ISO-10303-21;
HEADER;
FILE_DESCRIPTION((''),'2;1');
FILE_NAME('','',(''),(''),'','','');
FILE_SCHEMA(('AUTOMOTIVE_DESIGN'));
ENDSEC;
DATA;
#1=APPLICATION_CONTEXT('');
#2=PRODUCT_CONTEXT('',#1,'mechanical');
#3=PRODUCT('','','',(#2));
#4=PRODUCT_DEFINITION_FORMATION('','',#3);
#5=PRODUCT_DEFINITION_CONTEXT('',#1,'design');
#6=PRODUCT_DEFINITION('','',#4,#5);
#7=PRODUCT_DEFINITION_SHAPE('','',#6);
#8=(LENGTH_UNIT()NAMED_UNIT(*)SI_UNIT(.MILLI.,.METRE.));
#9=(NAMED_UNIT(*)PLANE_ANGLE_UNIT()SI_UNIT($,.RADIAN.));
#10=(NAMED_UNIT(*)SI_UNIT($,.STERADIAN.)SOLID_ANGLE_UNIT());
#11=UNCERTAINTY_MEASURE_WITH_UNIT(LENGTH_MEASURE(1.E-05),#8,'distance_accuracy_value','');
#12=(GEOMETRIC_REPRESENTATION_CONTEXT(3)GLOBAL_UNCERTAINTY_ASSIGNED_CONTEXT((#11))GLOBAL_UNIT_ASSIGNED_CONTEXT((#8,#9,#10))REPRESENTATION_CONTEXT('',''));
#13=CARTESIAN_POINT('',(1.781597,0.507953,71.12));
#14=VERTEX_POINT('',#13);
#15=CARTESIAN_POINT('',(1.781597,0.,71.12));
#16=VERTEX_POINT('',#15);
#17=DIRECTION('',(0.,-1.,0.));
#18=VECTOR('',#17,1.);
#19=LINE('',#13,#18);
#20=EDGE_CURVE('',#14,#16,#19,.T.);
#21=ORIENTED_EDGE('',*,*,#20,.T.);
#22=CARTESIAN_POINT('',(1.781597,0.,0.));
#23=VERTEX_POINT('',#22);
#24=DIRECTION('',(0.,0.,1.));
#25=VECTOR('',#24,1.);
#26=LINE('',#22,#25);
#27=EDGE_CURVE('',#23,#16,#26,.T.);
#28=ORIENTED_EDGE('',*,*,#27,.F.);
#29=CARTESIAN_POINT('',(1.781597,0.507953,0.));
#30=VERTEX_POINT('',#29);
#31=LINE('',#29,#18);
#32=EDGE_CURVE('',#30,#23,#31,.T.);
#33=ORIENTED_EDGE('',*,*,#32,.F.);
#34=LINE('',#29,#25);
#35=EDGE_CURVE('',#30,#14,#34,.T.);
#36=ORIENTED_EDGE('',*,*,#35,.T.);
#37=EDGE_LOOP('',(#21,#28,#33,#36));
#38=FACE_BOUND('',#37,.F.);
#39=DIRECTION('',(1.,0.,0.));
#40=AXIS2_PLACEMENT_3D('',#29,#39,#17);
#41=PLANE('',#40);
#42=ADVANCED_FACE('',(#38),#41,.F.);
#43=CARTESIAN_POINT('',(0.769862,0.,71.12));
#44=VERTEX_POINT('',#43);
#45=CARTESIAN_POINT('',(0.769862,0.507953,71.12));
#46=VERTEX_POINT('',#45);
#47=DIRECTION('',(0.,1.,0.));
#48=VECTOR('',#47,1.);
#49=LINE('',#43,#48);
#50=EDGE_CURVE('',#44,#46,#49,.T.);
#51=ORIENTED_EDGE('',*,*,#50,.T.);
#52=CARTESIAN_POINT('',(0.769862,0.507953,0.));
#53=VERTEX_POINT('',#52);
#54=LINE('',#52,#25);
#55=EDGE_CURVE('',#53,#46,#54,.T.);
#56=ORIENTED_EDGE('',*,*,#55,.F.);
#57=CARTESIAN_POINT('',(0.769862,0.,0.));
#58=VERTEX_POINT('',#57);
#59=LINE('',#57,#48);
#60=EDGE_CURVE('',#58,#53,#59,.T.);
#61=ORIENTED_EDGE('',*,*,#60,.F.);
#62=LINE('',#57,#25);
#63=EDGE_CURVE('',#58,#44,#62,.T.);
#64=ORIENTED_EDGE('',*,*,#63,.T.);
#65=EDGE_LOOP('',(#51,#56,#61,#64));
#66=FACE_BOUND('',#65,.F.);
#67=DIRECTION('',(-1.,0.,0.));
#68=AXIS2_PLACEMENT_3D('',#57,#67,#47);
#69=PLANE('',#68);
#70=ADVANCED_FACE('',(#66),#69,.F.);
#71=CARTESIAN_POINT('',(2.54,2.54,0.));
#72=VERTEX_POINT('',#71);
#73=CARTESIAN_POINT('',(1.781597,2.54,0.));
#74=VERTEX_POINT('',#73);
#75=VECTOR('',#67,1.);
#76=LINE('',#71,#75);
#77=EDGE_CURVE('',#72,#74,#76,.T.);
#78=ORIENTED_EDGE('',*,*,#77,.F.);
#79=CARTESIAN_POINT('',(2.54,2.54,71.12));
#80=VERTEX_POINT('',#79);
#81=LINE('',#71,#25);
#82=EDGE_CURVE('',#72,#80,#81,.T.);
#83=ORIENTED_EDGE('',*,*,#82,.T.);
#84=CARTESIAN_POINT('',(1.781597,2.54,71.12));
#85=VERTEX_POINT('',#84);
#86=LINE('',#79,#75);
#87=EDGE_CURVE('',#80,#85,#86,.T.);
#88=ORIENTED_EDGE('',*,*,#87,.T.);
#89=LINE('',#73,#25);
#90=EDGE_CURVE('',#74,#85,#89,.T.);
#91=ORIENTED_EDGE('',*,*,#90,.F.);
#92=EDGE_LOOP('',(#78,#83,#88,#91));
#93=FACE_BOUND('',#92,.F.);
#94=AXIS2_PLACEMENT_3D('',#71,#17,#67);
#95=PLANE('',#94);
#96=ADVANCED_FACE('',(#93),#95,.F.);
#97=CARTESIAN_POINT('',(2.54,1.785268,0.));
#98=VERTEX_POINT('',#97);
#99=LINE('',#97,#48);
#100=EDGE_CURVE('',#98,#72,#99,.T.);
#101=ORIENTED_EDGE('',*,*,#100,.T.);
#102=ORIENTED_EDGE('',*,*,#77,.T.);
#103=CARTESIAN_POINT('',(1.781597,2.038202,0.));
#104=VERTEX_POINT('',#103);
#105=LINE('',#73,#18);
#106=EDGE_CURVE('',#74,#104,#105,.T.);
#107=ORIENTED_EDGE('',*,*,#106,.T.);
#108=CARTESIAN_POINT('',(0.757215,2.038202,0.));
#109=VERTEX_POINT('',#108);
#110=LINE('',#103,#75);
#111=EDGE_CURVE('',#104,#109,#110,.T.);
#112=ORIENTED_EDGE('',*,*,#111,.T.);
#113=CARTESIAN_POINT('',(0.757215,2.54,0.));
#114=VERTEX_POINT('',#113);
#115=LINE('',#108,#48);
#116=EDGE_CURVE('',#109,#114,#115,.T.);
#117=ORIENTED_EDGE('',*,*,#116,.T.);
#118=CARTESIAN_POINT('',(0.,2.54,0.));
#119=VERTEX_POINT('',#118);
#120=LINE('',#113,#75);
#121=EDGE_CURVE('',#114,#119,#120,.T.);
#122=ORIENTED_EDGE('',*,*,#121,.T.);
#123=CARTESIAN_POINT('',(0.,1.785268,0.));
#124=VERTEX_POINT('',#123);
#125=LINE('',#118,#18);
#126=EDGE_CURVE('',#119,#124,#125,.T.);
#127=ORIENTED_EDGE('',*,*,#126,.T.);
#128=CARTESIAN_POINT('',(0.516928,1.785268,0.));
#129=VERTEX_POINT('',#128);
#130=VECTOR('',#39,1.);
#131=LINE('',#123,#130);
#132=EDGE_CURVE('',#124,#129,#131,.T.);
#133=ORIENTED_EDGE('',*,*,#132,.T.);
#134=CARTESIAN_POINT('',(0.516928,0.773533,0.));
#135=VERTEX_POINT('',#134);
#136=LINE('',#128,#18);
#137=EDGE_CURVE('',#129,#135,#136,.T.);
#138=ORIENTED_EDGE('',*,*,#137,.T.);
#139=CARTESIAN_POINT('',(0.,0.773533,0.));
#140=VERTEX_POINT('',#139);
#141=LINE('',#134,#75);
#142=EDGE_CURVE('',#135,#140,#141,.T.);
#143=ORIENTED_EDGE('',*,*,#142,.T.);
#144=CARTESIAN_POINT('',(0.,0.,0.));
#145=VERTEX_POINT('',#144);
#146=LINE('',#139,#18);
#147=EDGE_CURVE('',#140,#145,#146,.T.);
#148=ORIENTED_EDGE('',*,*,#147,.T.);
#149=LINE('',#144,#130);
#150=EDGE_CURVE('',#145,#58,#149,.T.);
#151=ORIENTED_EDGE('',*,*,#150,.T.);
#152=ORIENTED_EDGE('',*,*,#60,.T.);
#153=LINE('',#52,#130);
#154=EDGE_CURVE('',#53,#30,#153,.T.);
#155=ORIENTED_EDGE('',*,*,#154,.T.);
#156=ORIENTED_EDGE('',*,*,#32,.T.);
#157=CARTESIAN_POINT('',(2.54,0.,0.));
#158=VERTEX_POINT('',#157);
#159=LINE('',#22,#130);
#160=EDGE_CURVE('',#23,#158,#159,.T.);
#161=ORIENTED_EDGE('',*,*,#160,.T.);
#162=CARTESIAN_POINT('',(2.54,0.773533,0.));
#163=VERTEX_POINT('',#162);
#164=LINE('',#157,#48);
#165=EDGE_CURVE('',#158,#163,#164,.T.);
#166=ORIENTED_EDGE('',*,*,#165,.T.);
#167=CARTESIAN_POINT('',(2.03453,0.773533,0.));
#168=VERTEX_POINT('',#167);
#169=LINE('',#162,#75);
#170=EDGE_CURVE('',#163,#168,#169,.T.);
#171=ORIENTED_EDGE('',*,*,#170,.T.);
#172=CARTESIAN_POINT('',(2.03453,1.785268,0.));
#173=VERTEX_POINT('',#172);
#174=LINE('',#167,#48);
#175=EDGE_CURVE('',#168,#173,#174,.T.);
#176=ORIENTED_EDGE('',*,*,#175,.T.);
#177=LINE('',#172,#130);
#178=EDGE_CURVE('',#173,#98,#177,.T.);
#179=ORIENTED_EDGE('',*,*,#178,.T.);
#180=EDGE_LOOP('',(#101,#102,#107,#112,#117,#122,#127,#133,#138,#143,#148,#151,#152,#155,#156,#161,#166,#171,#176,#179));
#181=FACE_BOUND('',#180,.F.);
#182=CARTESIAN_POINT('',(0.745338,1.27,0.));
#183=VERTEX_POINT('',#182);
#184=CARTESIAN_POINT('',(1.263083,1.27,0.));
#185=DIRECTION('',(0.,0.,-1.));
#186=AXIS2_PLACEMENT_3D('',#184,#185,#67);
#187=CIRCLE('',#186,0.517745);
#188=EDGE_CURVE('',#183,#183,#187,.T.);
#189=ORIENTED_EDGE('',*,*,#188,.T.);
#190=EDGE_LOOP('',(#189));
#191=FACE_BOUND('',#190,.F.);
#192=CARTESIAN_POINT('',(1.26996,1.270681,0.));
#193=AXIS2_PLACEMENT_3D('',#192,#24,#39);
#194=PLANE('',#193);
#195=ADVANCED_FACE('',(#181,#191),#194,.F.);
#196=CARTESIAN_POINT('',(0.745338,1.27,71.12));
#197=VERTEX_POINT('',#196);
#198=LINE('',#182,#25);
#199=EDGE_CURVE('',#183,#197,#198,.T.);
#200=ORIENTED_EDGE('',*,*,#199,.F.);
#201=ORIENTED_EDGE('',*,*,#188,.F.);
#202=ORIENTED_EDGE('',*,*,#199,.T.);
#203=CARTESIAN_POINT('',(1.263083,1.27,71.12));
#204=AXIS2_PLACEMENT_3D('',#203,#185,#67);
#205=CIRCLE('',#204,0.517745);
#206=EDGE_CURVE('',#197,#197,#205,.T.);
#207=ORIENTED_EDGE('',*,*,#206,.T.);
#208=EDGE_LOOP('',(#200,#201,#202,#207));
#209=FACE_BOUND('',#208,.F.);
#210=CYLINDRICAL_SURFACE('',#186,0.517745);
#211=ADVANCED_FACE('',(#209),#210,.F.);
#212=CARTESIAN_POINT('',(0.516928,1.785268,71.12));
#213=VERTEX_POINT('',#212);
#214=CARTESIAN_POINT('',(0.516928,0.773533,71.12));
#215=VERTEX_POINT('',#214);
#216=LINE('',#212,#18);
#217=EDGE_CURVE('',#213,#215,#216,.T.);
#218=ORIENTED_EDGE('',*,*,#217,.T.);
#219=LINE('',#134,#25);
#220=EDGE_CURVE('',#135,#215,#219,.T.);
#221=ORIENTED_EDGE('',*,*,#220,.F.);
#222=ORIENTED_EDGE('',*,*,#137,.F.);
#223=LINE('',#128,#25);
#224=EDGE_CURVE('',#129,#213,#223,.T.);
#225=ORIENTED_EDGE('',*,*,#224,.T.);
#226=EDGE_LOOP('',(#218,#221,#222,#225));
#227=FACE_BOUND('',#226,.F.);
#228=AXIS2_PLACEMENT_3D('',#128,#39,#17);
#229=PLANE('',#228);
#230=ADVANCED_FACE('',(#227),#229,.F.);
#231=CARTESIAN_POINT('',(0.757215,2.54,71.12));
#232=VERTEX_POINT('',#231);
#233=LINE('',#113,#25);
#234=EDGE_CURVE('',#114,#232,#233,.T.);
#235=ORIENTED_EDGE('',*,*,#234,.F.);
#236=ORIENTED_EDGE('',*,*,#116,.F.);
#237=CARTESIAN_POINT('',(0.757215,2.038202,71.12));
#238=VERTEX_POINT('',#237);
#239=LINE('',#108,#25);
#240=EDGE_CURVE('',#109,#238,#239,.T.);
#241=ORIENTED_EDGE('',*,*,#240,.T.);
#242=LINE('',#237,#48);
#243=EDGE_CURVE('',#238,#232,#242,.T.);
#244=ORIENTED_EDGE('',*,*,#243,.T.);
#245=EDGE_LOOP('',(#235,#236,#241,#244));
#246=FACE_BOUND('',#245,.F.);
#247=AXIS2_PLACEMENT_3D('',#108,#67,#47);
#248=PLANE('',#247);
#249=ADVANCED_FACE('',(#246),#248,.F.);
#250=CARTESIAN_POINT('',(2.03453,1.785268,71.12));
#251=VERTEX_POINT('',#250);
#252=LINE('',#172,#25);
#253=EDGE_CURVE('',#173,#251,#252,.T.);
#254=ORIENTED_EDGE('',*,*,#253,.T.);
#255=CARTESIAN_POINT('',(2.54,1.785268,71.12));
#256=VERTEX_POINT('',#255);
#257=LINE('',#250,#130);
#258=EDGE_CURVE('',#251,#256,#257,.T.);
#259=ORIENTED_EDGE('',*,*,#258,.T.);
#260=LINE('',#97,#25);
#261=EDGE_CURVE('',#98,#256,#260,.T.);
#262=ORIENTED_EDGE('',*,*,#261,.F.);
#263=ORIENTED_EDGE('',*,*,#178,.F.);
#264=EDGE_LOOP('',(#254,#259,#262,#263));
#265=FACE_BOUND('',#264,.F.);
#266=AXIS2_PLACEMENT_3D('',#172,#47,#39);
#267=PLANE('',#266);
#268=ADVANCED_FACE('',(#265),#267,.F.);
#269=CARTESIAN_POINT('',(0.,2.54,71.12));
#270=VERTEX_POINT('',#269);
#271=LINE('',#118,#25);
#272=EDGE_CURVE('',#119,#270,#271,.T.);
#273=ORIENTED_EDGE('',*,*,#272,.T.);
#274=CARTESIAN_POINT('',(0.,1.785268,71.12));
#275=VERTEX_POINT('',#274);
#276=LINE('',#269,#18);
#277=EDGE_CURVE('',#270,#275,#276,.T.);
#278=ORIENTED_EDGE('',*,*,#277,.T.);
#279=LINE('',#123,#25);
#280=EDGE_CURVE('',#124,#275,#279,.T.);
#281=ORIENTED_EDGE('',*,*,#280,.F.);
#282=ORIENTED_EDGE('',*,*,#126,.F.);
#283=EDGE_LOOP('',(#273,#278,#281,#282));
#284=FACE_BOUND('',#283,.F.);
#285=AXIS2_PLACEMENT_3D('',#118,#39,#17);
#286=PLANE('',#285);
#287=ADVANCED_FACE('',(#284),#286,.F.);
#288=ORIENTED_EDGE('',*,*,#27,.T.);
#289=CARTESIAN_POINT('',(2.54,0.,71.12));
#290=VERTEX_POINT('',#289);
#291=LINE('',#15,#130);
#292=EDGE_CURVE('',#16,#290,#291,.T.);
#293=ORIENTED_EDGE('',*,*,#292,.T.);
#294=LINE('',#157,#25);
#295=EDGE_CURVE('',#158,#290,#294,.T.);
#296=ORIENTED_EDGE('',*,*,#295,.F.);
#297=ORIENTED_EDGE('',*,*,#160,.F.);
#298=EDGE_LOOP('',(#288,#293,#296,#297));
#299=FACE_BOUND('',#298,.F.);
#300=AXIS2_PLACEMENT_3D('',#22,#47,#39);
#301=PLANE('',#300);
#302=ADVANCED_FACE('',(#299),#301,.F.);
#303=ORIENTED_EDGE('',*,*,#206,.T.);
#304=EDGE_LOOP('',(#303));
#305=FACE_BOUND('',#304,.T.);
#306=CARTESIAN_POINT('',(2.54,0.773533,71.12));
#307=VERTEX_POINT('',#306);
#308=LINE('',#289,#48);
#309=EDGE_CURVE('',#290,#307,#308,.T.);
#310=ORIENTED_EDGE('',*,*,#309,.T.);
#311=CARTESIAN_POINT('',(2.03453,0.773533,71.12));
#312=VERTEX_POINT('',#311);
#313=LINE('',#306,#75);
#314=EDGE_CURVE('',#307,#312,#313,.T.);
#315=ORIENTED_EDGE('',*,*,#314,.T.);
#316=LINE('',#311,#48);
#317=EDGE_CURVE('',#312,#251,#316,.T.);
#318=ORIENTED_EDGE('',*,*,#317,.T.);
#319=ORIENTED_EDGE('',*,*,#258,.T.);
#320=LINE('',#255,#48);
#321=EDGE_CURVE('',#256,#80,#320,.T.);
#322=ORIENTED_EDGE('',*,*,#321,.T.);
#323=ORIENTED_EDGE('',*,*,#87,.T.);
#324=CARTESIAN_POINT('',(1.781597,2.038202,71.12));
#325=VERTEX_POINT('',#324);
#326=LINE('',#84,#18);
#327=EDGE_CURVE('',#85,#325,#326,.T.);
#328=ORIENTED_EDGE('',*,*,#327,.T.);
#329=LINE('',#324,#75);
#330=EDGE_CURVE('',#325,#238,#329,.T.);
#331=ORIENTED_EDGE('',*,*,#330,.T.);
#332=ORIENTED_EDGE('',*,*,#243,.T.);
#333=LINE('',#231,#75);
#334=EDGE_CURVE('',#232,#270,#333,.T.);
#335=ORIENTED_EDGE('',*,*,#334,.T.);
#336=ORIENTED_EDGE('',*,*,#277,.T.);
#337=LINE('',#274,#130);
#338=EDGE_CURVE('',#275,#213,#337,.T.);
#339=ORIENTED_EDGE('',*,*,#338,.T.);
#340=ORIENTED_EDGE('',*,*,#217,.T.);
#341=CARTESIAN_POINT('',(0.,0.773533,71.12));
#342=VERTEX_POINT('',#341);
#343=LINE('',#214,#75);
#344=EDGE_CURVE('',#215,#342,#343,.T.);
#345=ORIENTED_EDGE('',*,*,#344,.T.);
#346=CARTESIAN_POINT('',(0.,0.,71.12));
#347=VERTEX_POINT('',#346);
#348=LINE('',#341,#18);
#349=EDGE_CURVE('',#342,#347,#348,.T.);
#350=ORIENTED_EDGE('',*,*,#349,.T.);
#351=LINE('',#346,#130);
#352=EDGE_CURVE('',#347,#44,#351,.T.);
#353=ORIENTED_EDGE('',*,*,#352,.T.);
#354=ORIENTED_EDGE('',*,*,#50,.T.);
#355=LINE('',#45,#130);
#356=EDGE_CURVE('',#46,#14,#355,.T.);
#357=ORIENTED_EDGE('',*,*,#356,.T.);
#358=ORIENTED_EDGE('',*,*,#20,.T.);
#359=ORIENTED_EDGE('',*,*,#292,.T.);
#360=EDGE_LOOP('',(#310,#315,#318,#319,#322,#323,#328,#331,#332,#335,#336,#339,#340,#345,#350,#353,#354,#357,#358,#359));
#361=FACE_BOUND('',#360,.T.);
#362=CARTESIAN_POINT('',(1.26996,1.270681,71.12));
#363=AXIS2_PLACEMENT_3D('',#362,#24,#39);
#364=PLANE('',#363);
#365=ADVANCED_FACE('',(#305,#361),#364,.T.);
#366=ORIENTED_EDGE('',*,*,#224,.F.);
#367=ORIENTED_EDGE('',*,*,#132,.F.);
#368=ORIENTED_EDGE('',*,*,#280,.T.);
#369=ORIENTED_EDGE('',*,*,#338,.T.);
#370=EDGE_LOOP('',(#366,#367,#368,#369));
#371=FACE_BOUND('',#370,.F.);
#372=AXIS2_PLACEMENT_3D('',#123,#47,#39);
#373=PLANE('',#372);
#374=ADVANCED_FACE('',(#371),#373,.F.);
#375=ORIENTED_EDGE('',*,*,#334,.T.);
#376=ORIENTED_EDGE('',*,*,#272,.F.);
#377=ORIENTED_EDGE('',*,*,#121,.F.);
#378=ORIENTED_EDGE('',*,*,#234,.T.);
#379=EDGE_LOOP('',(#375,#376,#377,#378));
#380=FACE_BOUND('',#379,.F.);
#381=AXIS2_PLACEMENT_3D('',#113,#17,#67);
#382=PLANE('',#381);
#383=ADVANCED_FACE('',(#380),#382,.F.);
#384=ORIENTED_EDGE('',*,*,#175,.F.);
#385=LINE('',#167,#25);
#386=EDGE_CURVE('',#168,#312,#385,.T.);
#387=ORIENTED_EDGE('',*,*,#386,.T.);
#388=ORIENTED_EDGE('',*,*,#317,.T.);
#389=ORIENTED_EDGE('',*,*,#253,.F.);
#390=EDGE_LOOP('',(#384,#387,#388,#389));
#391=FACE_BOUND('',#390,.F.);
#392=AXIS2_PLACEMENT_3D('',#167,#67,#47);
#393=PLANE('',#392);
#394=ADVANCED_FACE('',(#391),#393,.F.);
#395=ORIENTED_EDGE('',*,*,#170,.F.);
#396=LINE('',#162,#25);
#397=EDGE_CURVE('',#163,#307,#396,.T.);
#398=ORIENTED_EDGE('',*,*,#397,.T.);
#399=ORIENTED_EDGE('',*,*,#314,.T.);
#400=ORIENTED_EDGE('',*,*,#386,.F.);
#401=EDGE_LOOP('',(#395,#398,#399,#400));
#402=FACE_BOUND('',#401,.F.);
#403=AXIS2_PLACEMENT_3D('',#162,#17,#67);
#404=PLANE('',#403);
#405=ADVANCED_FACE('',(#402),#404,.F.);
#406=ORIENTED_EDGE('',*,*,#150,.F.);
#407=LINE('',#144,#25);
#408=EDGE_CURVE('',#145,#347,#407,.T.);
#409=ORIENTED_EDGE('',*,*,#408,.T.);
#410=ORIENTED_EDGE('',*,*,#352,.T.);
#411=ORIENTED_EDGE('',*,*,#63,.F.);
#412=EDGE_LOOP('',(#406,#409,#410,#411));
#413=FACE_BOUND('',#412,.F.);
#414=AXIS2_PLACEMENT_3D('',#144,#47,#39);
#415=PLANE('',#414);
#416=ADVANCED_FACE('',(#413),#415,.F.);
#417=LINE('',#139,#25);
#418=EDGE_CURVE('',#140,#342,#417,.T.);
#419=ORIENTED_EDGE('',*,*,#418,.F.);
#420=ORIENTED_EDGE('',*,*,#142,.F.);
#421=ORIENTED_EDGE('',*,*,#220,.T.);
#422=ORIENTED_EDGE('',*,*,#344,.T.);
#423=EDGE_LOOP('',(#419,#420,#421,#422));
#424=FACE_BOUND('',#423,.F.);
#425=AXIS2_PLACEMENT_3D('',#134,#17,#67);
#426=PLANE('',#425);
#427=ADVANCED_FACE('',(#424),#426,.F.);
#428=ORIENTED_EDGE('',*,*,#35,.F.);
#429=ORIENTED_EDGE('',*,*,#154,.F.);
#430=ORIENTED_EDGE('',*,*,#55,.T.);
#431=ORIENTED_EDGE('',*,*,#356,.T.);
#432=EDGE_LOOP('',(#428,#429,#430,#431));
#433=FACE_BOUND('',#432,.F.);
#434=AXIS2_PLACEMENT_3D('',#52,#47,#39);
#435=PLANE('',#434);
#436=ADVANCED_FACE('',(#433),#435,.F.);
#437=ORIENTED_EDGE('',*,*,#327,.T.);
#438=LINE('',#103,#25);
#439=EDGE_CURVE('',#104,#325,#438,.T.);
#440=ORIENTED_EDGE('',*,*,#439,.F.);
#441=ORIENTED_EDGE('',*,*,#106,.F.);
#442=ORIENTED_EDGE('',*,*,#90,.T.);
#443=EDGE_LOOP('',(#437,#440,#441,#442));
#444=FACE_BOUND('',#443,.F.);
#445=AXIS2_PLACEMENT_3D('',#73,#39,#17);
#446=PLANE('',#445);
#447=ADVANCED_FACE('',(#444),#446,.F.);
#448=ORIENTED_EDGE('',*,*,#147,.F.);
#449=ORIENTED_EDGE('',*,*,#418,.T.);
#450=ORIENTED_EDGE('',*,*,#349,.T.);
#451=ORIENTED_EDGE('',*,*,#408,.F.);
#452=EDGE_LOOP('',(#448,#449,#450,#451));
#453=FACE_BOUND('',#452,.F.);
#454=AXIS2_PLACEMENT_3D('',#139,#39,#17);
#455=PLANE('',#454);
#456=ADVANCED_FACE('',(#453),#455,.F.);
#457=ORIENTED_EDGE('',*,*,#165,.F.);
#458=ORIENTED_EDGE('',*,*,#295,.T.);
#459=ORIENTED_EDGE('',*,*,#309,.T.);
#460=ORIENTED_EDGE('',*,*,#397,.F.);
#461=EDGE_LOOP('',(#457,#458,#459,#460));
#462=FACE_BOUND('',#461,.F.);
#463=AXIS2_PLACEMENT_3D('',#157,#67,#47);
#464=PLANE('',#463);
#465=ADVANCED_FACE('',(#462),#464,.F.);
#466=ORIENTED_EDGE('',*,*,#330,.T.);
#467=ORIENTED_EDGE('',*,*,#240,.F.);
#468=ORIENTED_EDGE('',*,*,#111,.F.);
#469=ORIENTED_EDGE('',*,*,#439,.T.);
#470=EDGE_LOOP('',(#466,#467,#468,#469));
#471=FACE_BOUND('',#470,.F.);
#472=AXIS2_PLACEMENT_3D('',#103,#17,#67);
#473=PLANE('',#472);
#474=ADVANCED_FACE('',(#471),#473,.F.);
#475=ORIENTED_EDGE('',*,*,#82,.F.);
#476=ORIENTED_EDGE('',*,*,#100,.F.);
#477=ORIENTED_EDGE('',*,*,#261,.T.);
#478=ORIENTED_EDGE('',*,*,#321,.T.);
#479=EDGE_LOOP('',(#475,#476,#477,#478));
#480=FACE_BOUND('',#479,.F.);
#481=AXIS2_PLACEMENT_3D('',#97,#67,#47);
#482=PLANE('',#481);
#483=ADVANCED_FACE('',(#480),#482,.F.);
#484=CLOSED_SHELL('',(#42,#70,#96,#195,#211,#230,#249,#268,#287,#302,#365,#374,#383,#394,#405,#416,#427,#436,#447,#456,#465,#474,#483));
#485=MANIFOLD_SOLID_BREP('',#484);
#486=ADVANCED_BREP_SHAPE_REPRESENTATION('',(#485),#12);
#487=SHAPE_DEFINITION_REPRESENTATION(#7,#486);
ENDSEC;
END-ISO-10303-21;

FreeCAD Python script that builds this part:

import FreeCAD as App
import Part
import Sketcher
from FreeCAD import Vector
Q = App.Units.Quantity


def add_polygon(sketch, points):
    """Adds a closed chain of lines whose ends are joined by coincident constraints."""
    first, n = sketch.GeometryCount, len(points)
    for a, b in zip(points, points[1:] + points[:1]):
        sketch.addGeometry(Part.LineSegment(App.Vector(*a, 0), App.Vector(*b, 0)), False)
    for i in range(n):
        sketch.addConstraint(Sketcher.Constraint("Coincident", first + i, 2, first + (i + 1) % n, 1))

doc = App.newDocument("Part")
params = doc.addObject("Spreadsheet::Sheet", "Params")
for row, (alias, value) in enumerate([
    ("pad1_length", "2.8 in"),
], start=1):
    params.set(f"A{row}", alias)
    params.set(f"B{row}", "=" + value)
    params.setAlias(f"B{row}", alias)

body = doc.addObject("PartDesign::Body", "Body")

# Sketch on XY plane
sketch1 = body.newObject("Sketcher::SketchObject", "Sketch")
sketch1.AttachmentSupport = (doc.getObject("XY_Plane"), [""])
sketch1.MapMode = "FlatFace"
add_polygon(sketch1, [(0, 0.8), (0, 0), (0.8, 0), (0.8, 0.5), (1.8, 0.5), (1.8, 0), (2.5, 0), (2.5, 0.8), (2, 0.8), (2, 1.8), (2.5, 1.8), (2.5, 2.5), (1.8, 2.5), (1.8, 2), (0.8, 2), (0.8, 2.5), (0, 2.5), (0, 1.8), (0.5, 1.8), (0.5, 0.8)])  # lines 0-19
sketch1.addGeometry(Part.Circle(Vector(1.3, 1.3, 0), Vector(0, 0, 1), 0.5), False)  # 20
sketch1.addConstraint([
    Sketcher.Constraint("Vertical", 0),
    Sketcher.Constraint("Horizontal", 1),
    Sketcher.Constraint("Vertical", 2),
    Sketcher.Constraint("Horizontal", 3),
    Sketcher.Constraint("Vertical", 4),
    Sketcher.Constraint("Horizontal", 5),
    Sketcher.Constraint("Vertical", 6),
    Sketcher.Constraint("Horizontal", 7),
    Sketcher.Constraint("Vertical", 8),
    Sketcher.Constraint("Horizontal", 9),
    Sketcher.Constraint("Vertical", 10),
    Sketcher.Constraint("Horizontal", 11),
    Sketcher.Constraint("Vertical", 12),
    Sketcher.Constraint("Horizontal", 13),
    Sketcher.Constraint("Vertical", 14),
    Sketcher.Constraint("Horizontal", 15),
    Sketcher.Constraint("Vertical", 16),
    Sketcher.Constraint("Horizontal", 17),
    Sketcher.Constraint("Vertical", 18),
    Sketcher.Constraint("Horizontal", 19),
    Sketcher.Constraint("Coincident", 0, 2, -1, 1),
    Sketcher.Constraint("PointOnObject", 4, 2, -1),
    Sketcher.Constraint("PointOnObject", 15, 2, -2),
    Sketcher.Constraint("Horizontal", 11, 2, 14, 2),
    Sketcher.Constraint("Horizontal", 9, 2, 16, 2),
    Sketcher.Constraint("Horizontal", 7, 2, 18, 2),
    Sketcher.Constraint("Vertical", 6, 2, 9, 2),
    Sketcher.Constraint("Vertical", 4, 2, 11, 2),
    Sketcher.Constraint("Equal", 3, 8),
    Sketcher.Constraint("DistanceX", -1, 1, 5, 2, Q("0.1 in")),
    Sketcher.Constraint("DistanceY", -1, 1, 10, 2, Q("0.1 in")),
    Sketcher.Constraint("DistanceY", -1, 1, 20, 3, Q("0.05 in")),
    Sketcher.Constraint("Diameter", 20, 1.03549),
    Sketcher.Constraint("DistanceX", 7, 2, 7, 1, 0.50547),
    Sketcher.Constraint("DistanceX", 17, 1, 17, 2, 0.516928),
    Sketcher.Constraint("DistanceY", 10, 1, 10, 2, 0.754732),
    Sketcher.Constraint("DistanceX", 1, 1, 1, 2, 0.769862),
    Sketcher.Constraint("DistanceX", 3, 1, 3, 2, 1.011735),
    Sketcher.Constraint("DistanceX", 13, 2, 13, 1, 1.024382),
    Sketcher.Constraint("DistanceY", 2, 1, 2, 2, 0.507953),
    Sketcher.Constraint("DistanceY", 12, 2, 12, 1, 0.501798),
    Sketcher.Constraint("DistanceX", 1, 2, 20, 3, 0.493221),
])
pad1 = body.newObject("PartDesign::Pad", "Pad")
pad1.Profile = sketch1
pad1.setExpression("Length", "Params.pad1_length")

doc.recompute()
